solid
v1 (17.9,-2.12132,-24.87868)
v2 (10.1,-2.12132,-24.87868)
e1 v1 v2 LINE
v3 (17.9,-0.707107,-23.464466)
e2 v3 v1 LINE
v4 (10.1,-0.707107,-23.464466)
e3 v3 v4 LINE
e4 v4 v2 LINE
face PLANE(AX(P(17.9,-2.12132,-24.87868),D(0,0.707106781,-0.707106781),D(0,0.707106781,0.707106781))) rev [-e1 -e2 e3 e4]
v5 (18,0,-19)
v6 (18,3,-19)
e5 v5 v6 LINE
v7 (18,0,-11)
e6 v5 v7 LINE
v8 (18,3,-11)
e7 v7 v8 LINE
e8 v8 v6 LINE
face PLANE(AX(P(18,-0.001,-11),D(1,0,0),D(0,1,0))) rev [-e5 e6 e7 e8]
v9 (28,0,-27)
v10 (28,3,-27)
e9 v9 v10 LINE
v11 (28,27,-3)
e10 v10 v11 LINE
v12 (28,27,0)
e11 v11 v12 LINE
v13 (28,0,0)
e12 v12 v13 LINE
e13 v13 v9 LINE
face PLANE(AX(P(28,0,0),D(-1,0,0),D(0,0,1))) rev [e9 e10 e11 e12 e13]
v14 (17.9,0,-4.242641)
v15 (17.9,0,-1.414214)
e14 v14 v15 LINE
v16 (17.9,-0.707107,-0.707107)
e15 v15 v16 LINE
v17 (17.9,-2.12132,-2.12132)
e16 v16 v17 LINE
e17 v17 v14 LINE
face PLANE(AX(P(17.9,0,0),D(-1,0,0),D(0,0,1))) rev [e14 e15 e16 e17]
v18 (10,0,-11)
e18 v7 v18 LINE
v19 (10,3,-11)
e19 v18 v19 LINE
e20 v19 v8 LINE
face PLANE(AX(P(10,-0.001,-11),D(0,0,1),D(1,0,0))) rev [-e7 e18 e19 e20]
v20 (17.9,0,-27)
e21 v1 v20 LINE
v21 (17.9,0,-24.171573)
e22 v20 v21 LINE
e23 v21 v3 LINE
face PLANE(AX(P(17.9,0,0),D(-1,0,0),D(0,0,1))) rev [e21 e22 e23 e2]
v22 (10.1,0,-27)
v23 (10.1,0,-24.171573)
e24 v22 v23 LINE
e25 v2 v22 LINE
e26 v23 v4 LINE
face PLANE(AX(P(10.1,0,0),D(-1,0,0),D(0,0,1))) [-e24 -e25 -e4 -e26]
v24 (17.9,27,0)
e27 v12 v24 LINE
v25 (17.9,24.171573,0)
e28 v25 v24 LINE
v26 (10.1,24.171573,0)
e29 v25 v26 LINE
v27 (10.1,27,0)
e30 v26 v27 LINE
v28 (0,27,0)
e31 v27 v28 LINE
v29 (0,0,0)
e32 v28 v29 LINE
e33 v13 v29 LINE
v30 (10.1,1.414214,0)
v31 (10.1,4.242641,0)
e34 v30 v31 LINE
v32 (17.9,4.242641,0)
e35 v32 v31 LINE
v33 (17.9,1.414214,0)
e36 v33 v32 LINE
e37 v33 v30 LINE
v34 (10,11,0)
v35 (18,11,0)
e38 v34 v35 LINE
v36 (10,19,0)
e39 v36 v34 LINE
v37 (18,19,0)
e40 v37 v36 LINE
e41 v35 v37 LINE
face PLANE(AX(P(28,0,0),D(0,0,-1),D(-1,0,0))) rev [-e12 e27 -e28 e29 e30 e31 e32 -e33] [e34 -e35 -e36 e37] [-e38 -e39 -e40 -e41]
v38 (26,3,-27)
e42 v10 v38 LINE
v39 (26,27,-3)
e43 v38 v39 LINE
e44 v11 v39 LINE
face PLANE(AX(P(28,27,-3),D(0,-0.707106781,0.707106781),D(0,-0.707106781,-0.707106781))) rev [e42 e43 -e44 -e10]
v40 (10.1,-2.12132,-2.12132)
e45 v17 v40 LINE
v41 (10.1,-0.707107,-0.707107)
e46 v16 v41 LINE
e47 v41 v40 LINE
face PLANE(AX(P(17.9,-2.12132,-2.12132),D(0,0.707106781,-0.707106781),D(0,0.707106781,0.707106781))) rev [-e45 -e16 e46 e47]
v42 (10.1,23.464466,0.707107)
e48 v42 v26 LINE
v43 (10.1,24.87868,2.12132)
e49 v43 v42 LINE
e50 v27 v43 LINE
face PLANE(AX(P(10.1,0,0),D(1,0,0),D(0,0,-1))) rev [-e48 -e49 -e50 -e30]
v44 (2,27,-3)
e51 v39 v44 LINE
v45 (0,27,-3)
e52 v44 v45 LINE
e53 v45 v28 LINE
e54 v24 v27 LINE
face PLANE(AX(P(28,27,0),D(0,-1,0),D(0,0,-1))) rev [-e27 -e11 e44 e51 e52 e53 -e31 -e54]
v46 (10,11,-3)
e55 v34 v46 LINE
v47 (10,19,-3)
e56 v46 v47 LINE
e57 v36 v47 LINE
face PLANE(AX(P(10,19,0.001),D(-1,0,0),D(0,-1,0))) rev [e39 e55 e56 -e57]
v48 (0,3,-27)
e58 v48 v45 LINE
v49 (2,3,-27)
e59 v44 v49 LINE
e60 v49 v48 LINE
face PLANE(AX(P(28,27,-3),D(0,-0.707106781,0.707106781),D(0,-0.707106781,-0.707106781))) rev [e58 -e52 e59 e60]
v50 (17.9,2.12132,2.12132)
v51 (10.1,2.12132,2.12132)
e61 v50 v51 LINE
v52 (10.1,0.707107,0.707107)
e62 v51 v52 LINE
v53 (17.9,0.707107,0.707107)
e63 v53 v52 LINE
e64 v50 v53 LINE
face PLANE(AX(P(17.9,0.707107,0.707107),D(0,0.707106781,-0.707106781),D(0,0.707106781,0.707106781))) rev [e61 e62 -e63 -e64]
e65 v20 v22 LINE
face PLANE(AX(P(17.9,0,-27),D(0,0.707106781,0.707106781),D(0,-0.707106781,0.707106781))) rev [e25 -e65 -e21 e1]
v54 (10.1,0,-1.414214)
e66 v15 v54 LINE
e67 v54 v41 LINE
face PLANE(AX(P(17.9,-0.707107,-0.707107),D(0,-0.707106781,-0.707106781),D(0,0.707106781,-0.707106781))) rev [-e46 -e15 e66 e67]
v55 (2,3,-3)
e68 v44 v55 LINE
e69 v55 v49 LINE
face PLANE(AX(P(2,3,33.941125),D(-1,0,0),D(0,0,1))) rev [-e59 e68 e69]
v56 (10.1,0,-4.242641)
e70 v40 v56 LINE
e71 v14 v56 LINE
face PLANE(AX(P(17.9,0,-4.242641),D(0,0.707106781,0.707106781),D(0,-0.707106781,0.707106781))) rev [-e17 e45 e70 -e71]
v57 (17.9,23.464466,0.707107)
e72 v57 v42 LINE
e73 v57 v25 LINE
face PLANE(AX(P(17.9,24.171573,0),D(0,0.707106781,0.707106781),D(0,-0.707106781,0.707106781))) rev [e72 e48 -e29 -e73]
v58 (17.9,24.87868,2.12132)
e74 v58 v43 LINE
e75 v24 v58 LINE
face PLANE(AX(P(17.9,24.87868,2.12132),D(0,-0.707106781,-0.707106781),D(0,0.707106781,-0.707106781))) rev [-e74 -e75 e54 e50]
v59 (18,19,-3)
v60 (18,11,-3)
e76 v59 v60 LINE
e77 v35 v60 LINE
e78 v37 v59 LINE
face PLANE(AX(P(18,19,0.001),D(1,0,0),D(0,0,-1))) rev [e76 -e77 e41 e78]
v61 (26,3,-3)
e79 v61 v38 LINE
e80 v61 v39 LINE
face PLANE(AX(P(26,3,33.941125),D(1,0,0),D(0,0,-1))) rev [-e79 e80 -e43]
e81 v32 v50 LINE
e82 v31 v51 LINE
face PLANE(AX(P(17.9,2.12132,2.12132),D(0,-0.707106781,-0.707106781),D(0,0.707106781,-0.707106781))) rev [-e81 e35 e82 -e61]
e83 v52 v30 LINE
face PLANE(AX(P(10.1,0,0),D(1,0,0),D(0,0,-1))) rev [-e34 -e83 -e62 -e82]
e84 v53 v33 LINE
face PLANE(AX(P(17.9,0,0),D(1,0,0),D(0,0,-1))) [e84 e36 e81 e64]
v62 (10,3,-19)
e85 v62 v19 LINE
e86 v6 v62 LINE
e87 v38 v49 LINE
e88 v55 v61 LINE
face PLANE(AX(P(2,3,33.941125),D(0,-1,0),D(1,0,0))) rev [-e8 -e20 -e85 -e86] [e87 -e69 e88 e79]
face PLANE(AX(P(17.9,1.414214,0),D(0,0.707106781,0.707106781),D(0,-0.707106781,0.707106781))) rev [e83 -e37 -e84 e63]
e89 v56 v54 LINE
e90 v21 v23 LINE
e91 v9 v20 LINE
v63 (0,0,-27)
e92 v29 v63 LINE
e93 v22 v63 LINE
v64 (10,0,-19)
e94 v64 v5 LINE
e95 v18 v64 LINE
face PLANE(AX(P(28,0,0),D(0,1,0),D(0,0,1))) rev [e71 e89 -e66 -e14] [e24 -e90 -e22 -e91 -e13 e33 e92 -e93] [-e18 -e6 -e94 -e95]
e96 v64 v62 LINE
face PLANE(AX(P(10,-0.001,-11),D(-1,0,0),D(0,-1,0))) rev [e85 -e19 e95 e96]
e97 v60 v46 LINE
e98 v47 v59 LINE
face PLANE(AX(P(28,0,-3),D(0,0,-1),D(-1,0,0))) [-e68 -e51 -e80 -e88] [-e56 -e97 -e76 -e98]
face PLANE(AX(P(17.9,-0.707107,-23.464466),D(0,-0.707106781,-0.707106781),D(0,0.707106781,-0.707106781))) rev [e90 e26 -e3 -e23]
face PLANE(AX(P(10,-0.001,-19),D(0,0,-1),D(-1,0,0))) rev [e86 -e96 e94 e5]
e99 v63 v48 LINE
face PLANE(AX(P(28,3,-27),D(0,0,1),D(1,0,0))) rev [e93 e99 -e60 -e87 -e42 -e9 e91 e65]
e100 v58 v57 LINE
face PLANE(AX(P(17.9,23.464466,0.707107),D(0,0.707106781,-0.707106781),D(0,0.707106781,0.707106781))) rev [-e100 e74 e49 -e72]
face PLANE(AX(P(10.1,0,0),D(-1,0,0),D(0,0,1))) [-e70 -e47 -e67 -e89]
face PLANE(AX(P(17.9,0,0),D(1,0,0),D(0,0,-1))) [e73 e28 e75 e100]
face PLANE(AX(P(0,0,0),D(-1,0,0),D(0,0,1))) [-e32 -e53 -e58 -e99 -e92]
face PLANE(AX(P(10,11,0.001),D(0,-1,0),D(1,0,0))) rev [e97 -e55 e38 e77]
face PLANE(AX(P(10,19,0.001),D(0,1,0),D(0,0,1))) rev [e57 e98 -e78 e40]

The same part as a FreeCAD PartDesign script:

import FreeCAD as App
import Part
import Sketcher

V = App.Vector


def add_polygon(sketch, points):
    """Adds a closed chain of lines whose ends are joined by coincident constraints."""
    first, n = sketch.GeometryCount, len(points)
    for a, b in zip(points, points[1:] + points[:1]):
        sketch.addGeometry(Part.LineSegment(App.Vector(*a, 0), App.Vector(*b, 0)), False)
    for i in range(n):
        sketch.addConstraint(Sketcher.Constraint("Coincident", first + i, 2, first + (i + 1) % n, 1))

doc = App.newDocument("Part")
body = doc.addObject("PartDesign::Body", "Body")

sketch1 = doc.addObject("Sketcher::SketchObject", "Sketch")
body.addObject(sketch1)
sketch1.AttachmentSupport = (doc.YZ_Plane, [""])
sketch1.MapMode = "FlatFace"
add_polygon(sketch1, [(27, 0), (0, 0), (0, -27), (3, -27), (27, -3)])
sketch1.addConstraint([
    Sketcher.Constraint("Horizontal", 0),
    Sketcher.Constraint("Vertical", 1),
    Sketcher.Constraint("Horizontal", 2),
    Sketcher.Constraint("Vertical", 4),
    Sketcher.Constraint("Coincident", 0, 2, -1, 1),
    Sketcher.Constraint("Equal", 0, 1),
    Sketcher.Constraint("Equal", 2, 4),
    Sketcher.Constraint("DistanceX", 0, 2, 0, 1, 27.0),
    Sketcher.Constraint("DistanceX", 2, 1, 2, 2, 3.0),
])
pad1 = doc.addObject("PartDesign::Pad", "Pad")
body.addObject(pad1)
pad1.Profile = sketch1
pad1.Length = 28

sketch2 = doc.addObject("Sketcher::SketchObject", "Sketch001")
body.addObject(sketch2)
sketch2.AttachmentSupport = (doc.XY_Plane, [""])
sketch2.MapMode = "FlatFace"
sketch2.AttachmentOffset = App.Placement(V(0, 0, -27), App.Rotation())
add_polygon(sketch2, [(26, 27), (26, 3), (2, 3), (2, 27)])
sketch2.addConstraint([
    Sketcher.Constraint("Vertical", 0),
    Sketcher.Constraint("Horizontal", 1),
    Sketcher.Constraint("Vertical", 2),
    Sketcher.Constraint("Horizontal", 3),
    Sketcher.Constraint("Equal", 3, 0),
    Sketcher.Constraint("DistanceX", 1, 2, 1, 1, 24.0),
    Sketcher.Constraint("DistanceX", -1, 1, 0, 2, 26.0),
    Sketcher.Constraint("DistanceY", -1, 1, 0, 2, 3.0),
])
pocket1 = doc.addObject("PartDesign::Pocket", "Pocket")
body.addObject(pocket1)
pocket1.Profile = sketch2
pocket1.Length = 24
pocket1.Reversed = True

sketch3 = doc.addObject("Sketcher::SketchObject", "Sketch002")
body.addObject(sketch3)
sketch3.AttachmentSupport = (doc.XY_Plane, [""])
sketch3.MapMode = "FlatFace"
sketch3.AttachmentOffset = App.Placement(V(0, 0, -3), App.Rotation())
add_polygon(sketch3, [(18, 19), (18, 11), (10, 11), (10, 19)])
sketch3.addConstraint([
    Sketcher.Constraint("Vertical", 0),
    Sketcher.Constraint("Horizontal", 1),
    Sketcher.Constraint("Vertical", 2),
    Sketcher.Constraint("Horizontal", 3),
    Sketcher.Constraint("Equal", 3, 0),
    Sketcher.Constraint("DistanceX", 1, 2, 1, 1, 8.0),
    Sketcher.Constraint("DistanceX", -1, 1, 0, 2, 18.0),
    Sketcher.Constraint("DistanceY", -1, 1, 0, 2, 11.0),
])
pocket2 = doc.addObject("PartDesign::Pocket", "Pocket001")
body.addObject(pocket2)
pocket2.Profile = sketch3
pocket2.Type = "UpToFirst"
pocket2.Reversed = True

sketch4 = doc.addObject("Sketcher::SketchObject", "Sketch003")
body.addObject(sketch4)
sketch4.AttachmentSupport = (doc.XZ_Plane, [""])
sketch4.MapMode = "FlatFace"
sketch4.AttachmentOffset = App.Placement(V(0, 0, -3), App.Rotation())
add_polygon(sketch4, [(10, -19), (10, -11), (18, -11), (18, -19)])
sketch4.addConstraint([
    Sketcher.Constraint("Vertical", 0),
    Sketcher.Constraint("Horizontal", 1),
    Sketcher.Constraint("Vertical", 2),
    Sketcher.Constraint("Horizontal", 3),
    Sketcher.Constraint("Equal", 3, 0),
    Sketcher.Constraint("DistanceX", 1, 1, 1, 2, 8.0),
    Sketcher.Constraint("DistanceX", -1, 1, 0, 2, 10.0),
    Sketcher.Constraint("DistanceY", 0, 2, -1, 1, 11.0),
])
pocket3 = doc.addObject("PartDesign::Pocket", "Pocket002")
body.addObject(pocket3)
pocket3.Profile = sketch4
pocket3.Type = "UpToFirst"
pocket3.Reversed = True

sketch5 = doc.addObject("Sketcher::SketchObject", "Sketch004")
body.addObject(sketch5)
sketch5.AttachmentSupport = (doc.YZ_Plane, [""])
sketch5.MapMode = "FlatFace"
sketch5.AttachmentOffset = App.Placement(V(0, 0, 14), App.Rotation())
add_polygon(sketch5, [(-2.1, -24.9), (0, -27), (0, -24.2), (-0.7, -23.5)])
add_polygon(sketch5, [(-0.7, -0.7), (-2.1, -2.1), (0, -4.2), (0, -1.4)])
add_polygon(sketch5, [(0.7, 0.7), (1.4, 0), (4.2, 0), (2.1, 2.1)])
add_polygon(sketch5, [(24.9, 2.1), (23.5, 0.7), (24.2, 0), (27, 0)])
sketch5.addConstraint([
    Sketcher.Constraint("Vertical", 1),
    Sketcher.Constraint("Vertical", 6),
    Sketcher.Constraint("Horizontal", 9),
    Sketcher.Constraint("Horizontal", 14),
    Sketcher.Constraint("Symmetric", 4, 2, 10, 2, -1, 1),
    Sketcher.Constraint("Symmetric", 7, 2, 11, 2, -1, 1),
    Sketcher.Constraint("PointOnObject", 0, 2, -2),
    Sketcher.Constraint("PointOnObject", 5, 2, -2),
    Sketcher.Constraint("PointOnObject", 8, 2, -1),
    Sketcher.Constraint("PointOnObject", 13, 2, -1),
    Sketcher.Constraint("Parallel", 0, 2),
    Sketcher.Constraint("Perpendicular", 2, 3),
    Sketcher.Constraint("Parallel", 3, 4),
    Sketcher.Constraint("Perpendicular", 4, 5),
    Sketcher.Constraint("Parallel", 5, 7),
    Sketcher.Constraint("Parallel", 7, 8),
    Sketcher.Constraint("Parallel", 8, 10),
    Sketcher.Constraint("Parallel", 11, 12),
    Sketcher.Constraint("Perpendicular", 12, 13),
    Sketcher.Constraint("Parallel", 13, 15),
    Sketcher.Constraint("Horizontal", 11, 2, 12, 2),
    Sketcher.Constraint("Horizontal", 10, 2, 15, 2),
    Sketcher.Constraint("Vertical", 3, 2, 4, 2),
    Sketcher.Constraint("Vertical", 2, 2, 7, 2),
    Sketcher.Constraint("Equal", 14, 1),
    Sketcher.Constraint("Equal", 7, 8),
    Sketcher.Constraint("Distance", 0, 3.0),
    Sketcher.Constraint("Distance", 2, 1.0),
    Sketcher.Constraint("DistanceY", 0, 2, -1, 1, 27.0),
    Sketcher.Constraint("DistanceX", -1, 1, 14, 2, 27.0),
])
pad2 = doc.addObject("PartDesign::Pad", "Pad001")
body.addObject(pad2)
pad2.Profile = sketch5
pad2.Length = 7.8
pad2.Midplane = True

doc.recompute()
